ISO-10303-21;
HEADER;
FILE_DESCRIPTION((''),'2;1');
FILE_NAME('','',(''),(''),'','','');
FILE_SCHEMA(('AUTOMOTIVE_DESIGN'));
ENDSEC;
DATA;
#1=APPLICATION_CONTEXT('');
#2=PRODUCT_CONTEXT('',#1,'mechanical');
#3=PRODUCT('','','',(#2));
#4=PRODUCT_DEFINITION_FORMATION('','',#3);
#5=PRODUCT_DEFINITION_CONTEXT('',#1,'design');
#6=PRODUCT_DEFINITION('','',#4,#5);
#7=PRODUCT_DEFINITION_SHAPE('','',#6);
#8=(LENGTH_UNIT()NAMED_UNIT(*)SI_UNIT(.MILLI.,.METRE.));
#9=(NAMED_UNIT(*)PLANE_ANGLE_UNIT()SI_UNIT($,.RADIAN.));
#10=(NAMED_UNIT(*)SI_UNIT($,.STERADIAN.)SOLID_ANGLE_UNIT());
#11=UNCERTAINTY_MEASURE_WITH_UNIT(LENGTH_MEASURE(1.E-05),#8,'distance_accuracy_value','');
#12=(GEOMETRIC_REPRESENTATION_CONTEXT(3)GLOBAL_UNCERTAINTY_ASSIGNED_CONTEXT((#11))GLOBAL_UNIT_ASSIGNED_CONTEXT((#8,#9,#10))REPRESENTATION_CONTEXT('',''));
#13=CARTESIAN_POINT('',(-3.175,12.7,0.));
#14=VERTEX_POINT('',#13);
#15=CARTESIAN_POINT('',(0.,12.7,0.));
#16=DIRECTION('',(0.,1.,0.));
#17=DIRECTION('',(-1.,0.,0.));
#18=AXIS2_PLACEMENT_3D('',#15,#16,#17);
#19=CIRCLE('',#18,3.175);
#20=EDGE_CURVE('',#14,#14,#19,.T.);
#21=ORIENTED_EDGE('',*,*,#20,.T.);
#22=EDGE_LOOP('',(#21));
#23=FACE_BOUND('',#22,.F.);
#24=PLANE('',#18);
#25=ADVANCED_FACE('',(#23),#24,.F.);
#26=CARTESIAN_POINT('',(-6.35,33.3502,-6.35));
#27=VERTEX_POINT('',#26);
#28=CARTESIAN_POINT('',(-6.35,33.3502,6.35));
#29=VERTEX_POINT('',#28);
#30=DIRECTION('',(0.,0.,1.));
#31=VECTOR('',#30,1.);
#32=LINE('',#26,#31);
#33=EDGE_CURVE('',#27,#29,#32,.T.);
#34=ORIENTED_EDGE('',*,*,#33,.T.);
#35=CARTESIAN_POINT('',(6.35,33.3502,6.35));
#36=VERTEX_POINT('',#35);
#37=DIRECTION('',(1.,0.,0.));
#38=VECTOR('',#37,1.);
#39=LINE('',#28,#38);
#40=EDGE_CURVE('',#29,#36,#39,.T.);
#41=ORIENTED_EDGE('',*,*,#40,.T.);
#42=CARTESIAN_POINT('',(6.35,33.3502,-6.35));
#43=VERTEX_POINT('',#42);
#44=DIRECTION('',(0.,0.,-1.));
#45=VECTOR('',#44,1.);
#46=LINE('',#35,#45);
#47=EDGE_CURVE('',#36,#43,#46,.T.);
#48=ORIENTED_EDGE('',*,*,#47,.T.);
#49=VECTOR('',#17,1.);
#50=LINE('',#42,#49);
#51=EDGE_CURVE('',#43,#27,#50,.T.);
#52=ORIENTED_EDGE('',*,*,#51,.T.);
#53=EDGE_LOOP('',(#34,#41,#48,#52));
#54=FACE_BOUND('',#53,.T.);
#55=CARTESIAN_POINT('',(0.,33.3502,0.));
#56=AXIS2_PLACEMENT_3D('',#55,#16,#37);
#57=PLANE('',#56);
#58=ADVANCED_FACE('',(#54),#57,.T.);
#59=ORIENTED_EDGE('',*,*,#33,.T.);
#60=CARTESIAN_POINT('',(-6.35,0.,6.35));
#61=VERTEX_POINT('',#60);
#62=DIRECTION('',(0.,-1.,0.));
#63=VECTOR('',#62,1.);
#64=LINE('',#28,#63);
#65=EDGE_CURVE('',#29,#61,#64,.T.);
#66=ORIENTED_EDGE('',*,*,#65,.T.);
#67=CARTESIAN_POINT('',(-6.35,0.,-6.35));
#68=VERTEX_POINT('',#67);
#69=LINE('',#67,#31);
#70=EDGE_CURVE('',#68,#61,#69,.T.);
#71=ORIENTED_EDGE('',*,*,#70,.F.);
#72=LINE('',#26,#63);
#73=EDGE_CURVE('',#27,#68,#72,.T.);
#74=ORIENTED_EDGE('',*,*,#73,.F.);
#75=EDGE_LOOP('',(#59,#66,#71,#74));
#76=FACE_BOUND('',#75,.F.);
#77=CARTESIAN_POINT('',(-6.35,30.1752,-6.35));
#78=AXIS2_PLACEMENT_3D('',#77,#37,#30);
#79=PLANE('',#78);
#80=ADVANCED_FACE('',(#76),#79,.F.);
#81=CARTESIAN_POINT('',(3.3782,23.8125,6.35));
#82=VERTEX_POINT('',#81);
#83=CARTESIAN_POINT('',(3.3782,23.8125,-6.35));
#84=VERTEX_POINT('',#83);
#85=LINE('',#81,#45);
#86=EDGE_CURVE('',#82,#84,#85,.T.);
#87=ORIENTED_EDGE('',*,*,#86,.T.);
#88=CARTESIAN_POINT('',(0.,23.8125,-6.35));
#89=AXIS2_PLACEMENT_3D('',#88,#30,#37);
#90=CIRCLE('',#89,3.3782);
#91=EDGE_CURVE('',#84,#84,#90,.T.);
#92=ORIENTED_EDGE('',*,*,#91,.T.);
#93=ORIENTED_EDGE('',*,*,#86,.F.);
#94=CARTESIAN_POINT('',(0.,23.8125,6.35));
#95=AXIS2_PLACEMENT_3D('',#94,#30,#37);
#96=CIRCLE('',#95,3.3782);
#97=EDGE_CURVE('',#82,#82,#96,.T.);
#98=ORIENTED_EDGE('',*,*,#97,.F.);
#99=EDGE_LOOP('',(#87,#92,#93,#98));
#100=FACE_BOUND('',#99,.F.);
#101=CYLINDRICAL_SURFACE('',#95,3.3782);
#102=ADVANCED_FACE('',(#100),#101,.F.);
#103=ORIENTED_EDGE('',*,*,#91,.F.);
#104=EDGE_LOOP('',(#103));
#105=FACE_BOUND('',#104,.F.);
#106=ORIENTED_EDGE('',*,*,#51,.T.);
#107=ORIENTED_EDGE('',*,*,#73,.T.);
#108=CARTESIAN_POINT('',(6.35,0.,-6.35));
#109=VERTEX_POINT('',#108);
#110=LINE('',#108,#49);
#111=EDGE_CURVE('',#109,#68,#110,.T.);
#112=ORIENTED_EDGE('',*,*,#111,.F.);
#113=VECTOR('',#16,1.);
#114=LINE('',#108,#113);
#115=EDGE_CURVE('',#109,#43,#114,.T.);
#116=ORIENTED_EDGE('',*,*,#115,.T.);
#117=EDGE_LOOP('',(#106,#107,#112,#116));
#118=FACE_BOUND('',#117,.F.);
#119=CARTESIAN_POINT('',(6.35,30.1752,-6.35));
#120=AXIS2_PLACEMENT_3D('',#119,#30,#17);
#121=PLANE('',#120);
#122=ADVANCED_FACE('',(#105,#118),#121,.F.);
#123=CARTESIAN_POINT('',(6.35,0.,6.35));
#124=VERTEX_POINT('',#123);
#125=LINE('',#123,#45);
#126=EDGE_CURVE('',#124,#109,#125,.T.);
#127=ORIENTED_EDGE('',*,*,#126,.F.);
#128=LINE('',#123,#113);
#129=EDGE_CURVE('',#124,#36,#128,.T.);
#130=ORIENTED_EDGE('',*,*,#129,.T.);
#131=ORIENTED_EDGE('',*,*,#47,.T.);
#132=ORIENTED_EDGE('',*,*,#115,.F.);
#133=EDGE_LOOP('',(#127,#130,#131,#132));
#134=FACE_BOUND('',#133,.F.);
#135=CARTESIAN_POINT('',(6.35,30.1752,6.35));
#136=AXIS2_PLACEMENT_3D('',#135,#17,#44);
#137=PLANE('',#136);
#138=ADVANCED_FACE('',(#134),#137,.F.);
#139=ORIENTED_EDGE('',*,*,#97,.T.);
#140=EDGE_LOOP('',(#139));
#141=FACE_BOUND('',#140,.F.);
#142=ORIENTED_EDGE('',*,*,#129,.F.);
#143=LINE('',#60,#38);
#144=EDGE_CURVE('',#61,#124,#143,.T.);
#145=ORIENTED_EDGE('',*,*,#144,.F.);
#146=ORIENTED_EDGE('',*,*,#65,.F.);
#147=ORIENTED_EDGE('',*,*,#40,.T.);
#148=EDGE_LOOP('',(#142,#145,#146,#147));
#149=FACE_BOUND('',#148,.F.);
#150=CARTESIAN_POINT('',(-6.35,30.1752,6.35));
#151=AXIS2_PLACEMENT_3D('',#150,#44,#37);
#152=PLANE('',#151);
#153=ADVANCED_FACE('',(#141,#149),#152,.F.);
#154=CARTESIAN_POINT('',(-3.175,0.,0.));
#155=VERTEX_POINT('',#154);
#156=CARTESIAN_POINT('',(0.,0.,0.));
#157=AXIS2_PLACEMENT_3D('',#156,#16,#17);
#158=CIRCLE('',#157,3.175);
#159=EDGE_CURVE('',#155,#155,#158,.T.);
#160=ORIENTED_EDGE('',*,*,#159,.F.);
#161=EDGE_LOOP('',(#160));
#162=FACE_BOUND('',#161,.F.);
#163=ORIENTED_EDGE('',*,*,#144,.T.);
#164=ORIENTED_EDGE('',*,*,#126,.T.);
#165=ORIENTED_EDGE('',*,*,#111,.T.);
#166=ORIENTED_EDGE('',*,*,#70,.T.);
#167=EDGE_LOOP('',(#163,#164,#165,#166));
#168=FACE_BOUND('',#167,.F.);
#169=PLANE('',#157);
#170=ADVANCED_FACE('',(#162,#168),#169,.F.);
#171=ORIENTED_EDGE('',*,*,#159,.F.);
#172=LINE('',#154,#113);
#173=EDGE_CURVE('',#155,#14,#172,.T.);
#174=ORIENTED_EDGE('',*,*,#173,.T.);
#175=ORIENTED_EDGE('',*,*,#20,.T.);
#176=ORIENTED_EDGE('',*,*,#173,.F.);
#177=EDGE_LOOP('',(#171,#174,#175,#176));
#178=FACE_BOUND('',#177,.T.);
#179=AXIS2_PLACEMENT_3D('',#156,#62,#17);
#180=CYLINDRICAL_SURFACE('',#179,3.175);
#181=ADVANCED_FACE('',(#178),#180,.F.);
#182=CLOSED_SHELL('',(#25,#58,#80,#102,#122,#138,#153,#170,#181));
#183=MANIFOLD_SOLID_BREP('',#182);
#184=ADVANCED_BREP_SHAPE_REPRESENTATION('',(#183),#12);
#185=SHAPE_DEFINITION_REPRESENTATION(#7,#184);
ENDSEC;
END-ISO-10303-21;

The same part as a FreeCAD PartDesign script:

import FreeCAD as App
import Part
import Sketcher
from FreeCAD import Vector
Q = App.Units.Quantity


def add_polygon(sketch, points):
    """Adds a closed chain of lines whose ends are joined by coincident constraints."""
    first, n = sketch.GeometryCount, len(points)
    for a, b in zip(points, points[1:] + points[:1]):
        sketch.addGeometry(Part.LineSegment(App.Vector(*a, 0), App.Vector(*b, 0)), False)
    for i in range(n):
        sketch.addConstraint(Sketcher.Constraint("Coincident", first + i, 2, first + (i + 1) % n, 1))

doc = App.newDocument("Part")
body = doc.addObject("PartDesign::Body", "Body")

# Sketch on XZ plane
sketch1 = body.newObject("Sketcher::SketchObject", "Sketch")
sketch1.AttachmentSupport = (doc.getObject("XZ_Plane"), [""])
sketch1.MapMode = "FlatFace"
add_polygon(sketch1, [(-6, -6), (-6, 6), (6, 6), (6, -6)])  # lines 0-3
sketch1.addConstraint([
    Sketcher.Constraint("Vertical", 0),
    Sketcher.Constraint("Horizontal", 1),
    Sketcher.Constraint("Vertical", 2),
    Sketcher.Constraint("Horizontal", 3),
    Sketcher.Constraint("Symmetric", 0, 2, 2, 2, -1, 1),
    Sketcher.Constraint("Equal", 3, 0),
    Sketcher.Constraint("DistanceX", 0, 2, -1, 1, Q("0.25 in")),
])
pad1 = body.newObject("PartDesign::Pad", "Pad")
pad1.Profile = sketch1
pad1.Length = Q("1.188 in")
pad1.Reversed = True

# Sketch on XZ plane
sketch2 = body.newObject("Sketcher::SketchObject", "Sketch001")
sketch2.AttachmentSupport = (doc.getObject("XZ_Plane"), [""])
sketch2.MapMode = "FlatFace"
sketch2.addGeometry(Part.Circle(Vector(0, 0, 0), Vector(0, 0, 1), 3.2), False)
sketch2.addConstraint([
    Sketcher.Constraint("Coincident", 0, 3, -1, 1),
    Sketcher.Constraint("Diameter", 0, Q("0.25 in")),
])
pocket1 = body.newObject("PartDesign::Pocket", "Pocket")
pocket1.Profile = sketch2
pocket1.Length = Q("0.5 in")

# Sketch on XY plane
sketch3 = body.newObject("Sketcher::SketchObject", "Sketch002")
sketch3.AttachmentSupport = (doc.getObject("XY_Plane"), [""])
sketch3.MapMode = "FlatFace"
sketch3.AttachmentOffset = App.Placement(Vector(0, 0, 0.25 * 25.4), App.Rotation())
sketch3.addGeometry(Part.Circle(Vector(0, 23.8, 0), Vector(0, 0, 1), 3.4), False)
sketch3.addConstraint([
    Sketcher.Constraint("PointOnObject", 0, 3, -2),
    Sketcher.Constraint("Diameter", 0, Q("0.266 in")),
    Sketcher.Constraint("DistanceY", -1, 1, 0, 3, Q("0.9375 in")),
])
pocket2 = body.newObject("PartDesign::Pocket", "Pocket001")
pocket2.Profile = sketch3
pocket2.Length = Q("0.5 in")

# Sketch on XZ plane
sketch4 = body.newObject("Sketcher::SketchObject", "Sketch003")
sketch4.AttachmentSupport = (doc.getObject("XZ_Plane"), [""])
sketch4.MapMode = "FlatFace"
sketch4.AttachmentOffset = App.Placement(Vector(0, 0, -1.188 * 25.4), App.Rotation())
add_polygon(sketch4, [(-6, 6), (6, 6), (6, -6), (-6, -6)])  # lines 0-3
sketch4.addConstraint([
    Sketcher.Constraint("Horizontal", 0),
    Sketcher.Constraint("Vertical", 1),
    Sketcher.Constraint("Horizontal", 2),
    Sketcher.Constraint("Vertical", 3),
    Sketcher.Constraint("Symmetric", 0, 2, 2, 2, -1, 1),
    Sketcher.Constraint("Equal", 2, 1),
    Sketcher.Constraint("DistanceX", 0, 1, 0, 2, Q("0.5 in")),
])
pad2 = body.newObject("PartDesign::Pad", "Pad001")
pad2.Profile = sketch4
pad2.Length = Q("0.125 in")
pad2.Reversed = True

doc.recompute()
